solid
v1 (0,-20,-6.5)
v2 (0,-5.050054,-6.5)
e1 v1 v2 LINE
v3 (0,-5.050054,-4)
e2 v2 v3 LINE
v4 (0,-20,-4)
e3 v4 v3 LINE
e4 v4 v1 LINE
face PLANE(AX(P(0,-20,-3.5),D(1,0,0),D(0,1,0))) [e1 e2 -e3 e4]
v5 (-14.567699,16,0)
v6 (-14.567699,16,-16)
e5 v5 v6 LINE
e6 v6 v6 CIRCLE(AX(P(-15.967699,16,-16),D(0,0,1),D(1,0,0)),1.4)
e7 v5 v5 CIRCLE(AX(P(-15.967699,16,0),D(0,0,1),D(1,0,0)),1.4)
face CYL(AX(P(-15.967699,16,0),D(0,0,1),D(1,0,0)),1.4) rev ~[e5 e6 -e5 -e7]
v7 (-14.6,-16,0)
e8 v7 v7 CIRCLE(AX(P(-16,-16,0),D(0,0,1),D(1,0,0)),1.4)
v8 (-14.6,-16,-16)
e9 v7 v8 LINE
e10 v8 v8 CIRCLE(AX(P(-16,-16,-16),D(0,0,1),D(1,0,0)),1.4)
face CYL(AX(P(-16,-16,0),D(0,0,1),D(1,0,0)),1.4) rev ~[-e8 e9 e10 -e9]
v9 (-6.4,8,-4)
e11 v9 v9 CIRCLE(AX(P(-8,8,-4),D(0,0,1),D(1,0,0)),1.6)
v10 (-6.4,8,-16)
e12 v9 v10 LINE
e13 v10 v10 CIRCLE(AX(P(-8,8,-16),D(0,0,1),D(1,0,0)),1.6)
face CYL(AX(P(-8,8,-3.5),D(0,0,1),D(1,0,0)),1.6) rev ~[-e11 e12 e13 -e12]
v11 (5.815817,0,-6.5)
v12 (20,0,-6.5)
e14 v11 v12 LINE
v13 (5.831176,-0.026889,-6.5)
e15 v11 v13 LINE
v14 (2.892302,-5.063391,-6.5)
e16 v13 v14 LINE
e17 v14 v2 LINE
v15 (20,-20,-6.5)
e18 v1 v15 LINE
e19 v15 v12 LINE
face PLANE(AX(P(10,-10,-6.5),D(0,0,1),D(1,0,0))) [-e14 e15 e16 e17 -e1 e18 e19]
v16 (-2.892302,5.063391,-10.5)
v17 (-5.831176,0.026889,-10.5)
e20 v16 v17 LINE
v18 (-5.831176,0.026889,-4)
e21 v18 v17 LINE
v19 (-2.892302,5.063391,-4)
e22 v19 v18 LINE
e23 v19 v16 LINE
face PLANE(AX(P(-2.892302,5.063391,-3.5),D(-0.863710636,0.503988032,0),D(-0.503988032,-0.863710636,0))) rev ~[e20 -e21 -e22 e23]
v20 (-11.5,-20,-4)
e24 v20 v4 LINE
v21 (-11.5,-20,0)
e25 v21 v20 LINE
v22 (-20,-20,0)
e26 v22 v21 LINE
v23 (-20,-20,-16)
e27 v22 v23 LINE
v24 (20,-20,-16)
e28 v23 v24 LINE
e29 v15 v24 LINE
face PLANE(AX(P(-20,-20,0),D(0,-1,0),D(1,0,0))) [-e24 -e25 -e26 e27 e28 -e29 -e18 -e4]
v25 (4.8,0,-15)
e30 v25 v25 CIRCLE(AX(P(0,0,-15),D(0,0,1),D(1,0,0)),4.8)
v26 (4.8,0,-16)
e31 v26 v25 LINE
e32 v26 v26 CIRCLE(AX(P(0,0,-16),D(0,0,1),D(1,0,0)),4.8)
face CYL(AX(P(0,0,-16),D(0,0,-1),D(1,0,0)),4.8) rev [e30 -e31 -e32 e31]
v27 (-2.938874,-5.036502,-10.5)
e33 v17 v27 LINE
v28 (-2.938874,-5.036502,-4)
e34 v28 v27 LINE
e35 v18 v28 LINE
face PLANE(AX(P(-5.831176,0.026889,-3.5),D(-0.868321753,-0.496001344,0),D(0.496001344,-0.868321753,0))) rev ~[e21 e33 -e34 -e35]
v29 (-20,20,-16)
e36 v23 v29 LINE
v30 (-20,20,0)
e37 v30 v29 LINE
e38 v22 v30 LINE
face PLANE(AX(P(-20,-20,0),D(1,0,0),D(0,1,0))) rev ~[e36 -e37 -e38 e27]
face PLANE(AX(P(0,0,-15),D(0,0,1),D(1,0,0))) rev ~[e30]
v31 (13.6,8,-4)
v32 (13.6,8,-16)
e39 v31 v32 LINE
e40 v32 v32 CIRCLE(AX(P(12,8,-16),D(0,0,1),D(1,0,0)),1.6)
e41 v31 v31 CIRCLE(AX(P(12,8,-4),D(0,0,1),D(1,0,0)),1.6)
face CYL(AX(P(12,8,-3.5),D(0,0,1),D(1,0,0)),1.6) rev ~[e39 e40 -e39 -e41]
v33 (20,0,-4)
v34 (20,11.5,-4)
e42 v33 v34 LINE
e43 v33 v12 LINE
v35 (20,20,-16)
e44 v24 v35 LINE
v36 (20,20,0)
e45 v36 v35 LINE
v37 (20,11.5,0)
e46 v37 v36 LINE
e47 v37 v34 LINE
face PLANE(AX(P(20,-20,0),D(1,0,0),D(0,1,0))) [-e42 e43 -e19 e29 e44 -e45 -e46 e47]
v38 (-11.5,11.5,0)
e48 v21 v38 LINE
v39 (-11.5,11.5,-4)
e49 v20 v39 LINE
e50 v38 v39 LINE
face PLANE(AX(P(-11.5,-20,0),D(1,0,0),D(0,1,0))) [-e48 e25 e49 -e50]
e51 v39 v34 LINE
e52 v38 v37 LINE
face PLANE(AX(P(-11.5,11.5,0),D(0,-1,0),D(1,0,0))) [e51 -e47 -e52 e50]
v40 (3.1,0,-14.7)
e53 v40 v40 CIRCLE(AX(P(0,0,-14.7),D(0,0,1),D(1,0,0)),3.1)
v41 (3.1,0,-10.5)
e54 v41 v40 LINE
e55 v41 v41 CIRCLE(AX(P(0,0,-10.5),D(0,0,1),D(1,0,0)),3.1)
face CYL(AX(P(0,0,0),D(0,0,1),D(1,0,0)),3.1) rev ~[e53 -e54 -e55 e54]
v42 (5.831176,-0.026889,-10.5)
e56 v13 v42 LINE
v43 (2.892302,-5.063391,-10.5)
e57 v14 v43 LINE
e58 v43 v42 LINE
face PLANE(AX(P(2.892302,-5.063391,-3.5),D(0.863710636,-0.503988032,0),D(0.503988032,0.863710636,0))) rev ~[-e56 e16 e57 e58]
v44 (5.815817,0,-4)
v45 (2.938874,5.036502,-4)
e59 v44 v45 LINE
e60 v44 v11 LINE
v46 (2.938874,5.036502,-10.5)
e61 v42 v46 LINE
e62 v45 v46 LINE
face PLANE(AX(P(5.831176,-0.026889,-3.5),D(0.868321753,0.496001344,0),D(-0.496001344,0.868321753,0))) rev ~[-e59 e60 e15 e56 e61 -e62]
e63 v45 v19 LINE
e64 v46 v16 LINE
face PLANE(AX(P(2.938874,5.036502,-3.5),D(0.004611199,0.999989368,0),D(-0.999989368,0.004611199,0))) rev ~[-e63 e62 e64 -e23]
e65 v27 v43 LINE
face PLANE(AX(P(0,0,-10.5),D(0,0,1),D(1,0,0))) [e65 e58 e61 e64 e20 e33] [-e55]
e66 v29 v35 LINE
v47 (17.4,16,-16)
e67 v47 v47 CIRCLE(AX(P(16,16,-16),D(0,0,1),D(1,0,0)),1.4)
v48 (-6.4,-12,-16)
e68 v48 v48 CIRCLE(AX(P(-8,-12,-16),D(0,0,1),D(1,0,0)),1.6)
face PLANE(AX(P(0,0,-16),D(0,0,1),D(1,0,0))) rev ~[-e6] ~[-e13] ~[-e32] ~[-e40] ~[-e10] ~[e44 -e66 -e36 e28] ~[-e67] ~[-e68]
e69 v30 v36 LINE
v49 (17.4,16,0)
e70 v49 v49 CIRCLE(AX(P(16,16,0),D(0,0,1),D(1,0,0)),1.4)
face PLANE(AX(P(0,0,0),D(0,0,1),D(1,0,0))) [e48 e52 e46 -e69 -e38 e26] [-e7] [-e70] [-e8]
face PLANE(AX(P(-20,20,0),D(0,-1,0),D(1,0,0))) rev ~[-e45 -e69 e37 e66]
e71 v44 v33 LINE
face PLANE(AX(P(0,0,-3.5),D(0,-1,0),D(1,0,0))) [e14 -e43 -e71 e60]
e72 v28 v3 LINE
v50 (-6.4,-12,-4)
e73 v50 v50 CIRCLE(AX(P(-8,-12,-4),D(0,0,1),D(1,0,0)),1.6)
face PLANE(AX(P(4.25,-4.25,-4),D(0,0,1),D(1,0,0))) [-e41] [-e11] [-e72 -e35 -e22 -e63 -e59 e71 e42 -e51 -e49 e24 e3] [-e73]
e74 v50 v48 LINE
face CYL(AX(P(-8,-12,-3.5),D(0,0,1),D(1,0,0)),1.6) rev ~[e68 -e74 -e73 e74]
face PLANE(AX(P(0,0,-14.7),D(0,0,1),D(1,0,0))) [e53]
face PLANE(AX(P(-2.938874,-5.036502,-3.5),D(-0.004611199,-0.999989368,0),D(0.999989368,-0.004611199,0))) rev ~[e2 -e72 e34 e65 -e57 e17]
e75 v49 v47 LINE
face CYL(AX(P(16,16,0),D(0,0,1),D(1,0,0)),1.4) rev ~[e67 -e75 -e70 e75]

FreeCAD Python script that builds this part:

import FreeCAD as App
import Part
import Sketcher
from FreeCAD import Vector
Q = App.Units.Quantity

doc = App.newDocument("Part")
body = doc.addObject("PartDesign::Body", "Body")

# Sketch on XY plane
sketch1 = body.newObject("Sketcher::SketchObject", "Sketch")
sketch1.AttachmentSupport = (doc.getObject("XY_Plane"), [""])
sketch1.MapMode = "FlatFace"
sketch1.addGeometry(Part.LineSegment(Vector(-20, 20, 0), Vector(-20, -20, 0)), False)
sketch1.addGeometry(Part.LineSegment(Vector(-20, -20, 0), Vector(20, -20, 0)), False)
sketch1.addGeometry(Part.LineSegment(Vector(20, -20, 0), Vector(20, 20, 0)), False)
sketch1.addGeometry(Part.LineSegment(Vector(20, 20, 0), Vector(-20, 20, 0)), False)
sketch1.addConstraint(Sketcher.Constraint("Coincident", 0, 2, 1, 1))
sketch1.addConstraint(Sketcher.Constraint("Coincident", 1, 2, 2, 1))
sketch1.addConstraint(Sketcher.Constraint("Coincident", 2, 2, 3, 1))
sketch1.addConstraint(Sketcher.Constraint("Coincident", 3, 2, 0, 1))
sketch1.addConstraint(Sketcher.Constraint("Vertical", 0))
sketch1.addConstraint(Sketcher.Constraint("Horizontal", 1))
sketch1.addConstraint(Sketcher.Constraint("Vertical", 2))
sketch1.addConstraint(Sketcher.Constraint("Horizontal", 3))
sketch1.addConstraint(Sketcher.Constraint("Symmetric", 0, 2, 2, 2, -1, 1))
sketch1.addConstraint(Sketcher.Constraint("Equal", 3, 0))
sketch1.addConstraint(Sketcher.Constraint("DistanceX", 1, 1, 1, 2, Q("40 mm")))
pad1 = body.newObject("PartDesign::Pad", "Pad")
pad1.Profile = sketch1
pad1.Length = 16
pad1.Reversed = True

# Sketch on XY plane
sketch2 = body.newObject("Sketcher::SketchObject", "Sketch001")
sketch2.AttachmentSupport = (doc.getObject("XY_Plane"), [""])
sketch2.MapMode = "FlatFace"
sketch2.addGeometry(Part.Circle(Vector(0, 0, 0), Vector(0, 0, 1), 3.1), False)
sketch2.addConstraint(Sketcher.Constraint("Coincident", 0, 3, -1, 1))
sketch2.addConstraint(Sketcher.Constraint("Diameter", 0, Q("6.2 mm")))
pocket1 = body.newObject("PartDesign::Pocket", "Pocket")
pocket1.Profile = sketch2
pocket1.Length = 14.7

# Sketch on XY plane
sketch3 = body.newObject("Sketcher::SketchObject", "Sketch002")
sketch3.AttachmentSupport = (doc.getObject("XY_Plane"), [""])
sketch3.MapMode = "FlatFace"
sketch3.addGeometry(Part.LineSegment(Vector(-11.5, 11.5, 0), Vector(-11.5, -20, 0)), False)
sketch3.addGeometry(Part.LineSegment(Vector(-11.5, -20, 0), Vector(20, -20, 0)), False)
sketch3.addGeometry(Part.LineSegment(Vector(20, -20, 0), Vector(20, 11.5, 0)), False)
sketch3.addGeometry(Part.LineSegment(Vector(20, 11.5, 0), Vector(-11.5, 11.5, 0)), False)
sketch3.addConstraint(Sketcher.Constraint("Coincident", 0, 2, 1, 1))
sketch3.addConstraint(Sketcher.Constraint("Coincident", 1, 2, 2, 1))
sketch3.addConstraint(Sketcher.Constraint("Coincident", 2, 2, 3, 1))
sketch3.addConstraint(Sketcher.Constraint("Coincident", 3, 2, 0, 1))
sketch3.addConstraint(Sketcher.Constraint("Vertical", 0))
sketch3.addConstraint(Sketcher.Constraint("Horizontal", 1))
sketch3.addConstraint(Sketcher.Constraint("Vertical", 2))
sketch3.addConstraint(Sketcher.Constraint("Horizontal", 3))
sketch3.addConstraint(Sketcher.Constraint("Equal", 3, 0))
sketch3.addConstraint(Sketcher.Constraint("DistanceX", 1, 1, 1, 2, Q("31.5 mm")))
sketch3.addConstraint(Sketcher.Constraint("DistanceY", 0, 2, -1, 1, Q("20 mm")))
sketch3.addConstraint(Sketcher.Constraint("DistanceX", -1, 1, 1, 2, Q("20 mm")))
pocket2 = body.newObject("PartDesign::Pocket", "Pocket001")
pocket2.Profile = sketch3
pocket2.Length = 4

# Sketch on XY plane
sketch4 = body.newObject("Sketcher::SketchObject", "Sketch003")
sketch4.AttachmentSupport = (doc.getObject("XY_Plane"), [""])
sketch4.MapMode = "FlatFace"
sketch4.AttachmentOffset = App.Placement(Vector(0, 0, -3.5), App.Rotation())
sketch4.addGeometry(Part.LineSegment(Vector(5.831176, -0.026889, 0), Vector(2.938874, 5.036502, 0)), False)
sketch4.addGeometry(Part.LineSegment(Vector(2.938874, 5.036502, 0), Vector(-2.892302, 5.063391, 0)), False)
sketch4.addGeometry(Part.LineSegment(Vector(-2.892302, 5.063391, 0), Vector(-5.831176, 0.026889, 0)), False)
sketch4.addGeometry(Part.LineSegment(Vector(-5.831176, 0.026889, 0), Vector(-2.938874, -5.036502, 0)), False)
sketch4.addGeometry(Part.LineSegment(Vector(-2.938874, -5.036502, 0), Vector(2.892302, -5.063391, 0)), False)
sketch4.addGeometry(Part.LineSegment(Vector(2.892302, -5.063391, 0), Vector(5.831176, -0.026889, 0)), False)
sketch4.addConstraint(Sketcher.Constraint("Coincident", 0, 2, 1, 1))
sketch4.addConstraint(Sketcher.Constraint("Coincident", 1, 2, 2, 1))
sketch4.addConstraint(Sketcher.Constraint("Coincident", 2, 2, 3, 1))
sketch4.addConstraint(Sketcher.Constraint("Coincident", 3, 2, 4, 1))
sketch4.addConstraint(Sketcher.Constraint("Coincident", 4, 2, 5, 1))
sketch4.addConstraint(Sketcher.Constraint("Coincident", 5, 2, 0, 1))
sketch4.addConstraint(Sketcher.Constraint("Symmetric", 0, 2, 3, 2, -1, 1))
sketch4.addConstraint(Sketcher.Constraint("Symmetric", 1, 2, 4, 2, -1, 1))
sketch4.addConstraint(Sketcher.Constraint("Symmetric", 2, 2, 5, 2, -1, 1))
sketch4.addConstraint(Sketcher.Constraint("Equal", 0, 1))
sketch4.addConstraint(Sketcher.Constraint("Equal", 1, 2))
sketch4.addConstraint(Sketcher.Constraint("DistanceY", -1, 1, 0, 2, Q("5.036502 mm")))
sketch4.addConstraint(Sketcher.Constraint("DistanceX", 1, 2, -1, 1, Q("2.892302 mm")))
sketch4.addConstraint(Sketcher.Constraint("DistanceX", 2, 2, 3, 2, Q("2.892302 mm")))
sketch4.addConstraint(Sketcher.Constraint("Distance", 0, Q("5.831238 mm")))
pocket3 = body.newObject("PartDesign::Pocket", "Pocket002")
pocket3.Profile = sketch4
pocket3.Length = 7

# Sketch on XY plane
sketch5 = body.newObject("Sketcher::SketchObject", "Sketch004")
sketch5.AttachmentSupport = (doc.getObject("XY_Plane"), [""])
sketch5.MapMode = "FlatFace"
sketch5.AttachmentOffset = App.Placement(Vector(0, 0, -3.5), App.Rotation())
sketch5.addGeometry(Part.LineSegment(Vector(0, 0, 0), Vector(0, -20, 0)), False)
sketch5.addGeometry(Part.LineSegment(Vector(0, -20, 0), Vector(20, -20, 0)), False)
sketch5.addGeometry(Part.LineSegment(Vector(20, -20, 0), Vector(20, 0, 0)), False)
sketch5.addGeometry(Part.LineSegment(Vector(20, 0, 0), Vector(0, 0, 0)), False)
sketch5.addConstraint(Sketcher.Constraint("Coincident", 0, 2, 1, 1))
sketch5.addConstraint(Sketcher.Constraint("Coincident", 1, 2, 2, 1))
sketch5.addConstraint(Sketcher.Constraint("Coincident", 2, 2, 3, 1))
sketch5.addConstraint(Sketcher.Constraint("Coincident", 3, 2, 0, 1))
sketch5.addConstraint(Sketcher.Constraint("Vertical", 0))
sketch5.addConstraint(Sketcher.Constraint("Horizontal", 1))
sketch5.addConstraint(Sketcher.Constraint("Vertical", 2))
sketch5.addConstraint(Sketcher.Constraint("Horizontal", 3))
sketch5.addConstraint(Sketcher.Constraint("Coincident", 3, 2, -1, 1))
sketch5.addConstraint(Sketcher.Constraint("Equal", 3, 0))
sketch5.addConstraint(Sketcher.Constraint("DistanceX", 1, 1, 1, 2, Q("20 mm")))
pocket4 = body.newObject("PartDesign::Pocket", "Pocket003")
pocket4.Profile = sketch5
pocket4.Length = 3

# Sketch on XY plane
sketch6 = body.newObject("Sketcher::SketchObject", "Sketch005")
sketch6.AttachmentSupport = (doc.getObject("XY_Plane"), [""])
sketch6.MapMode = "FlatFace"
sketch6.AttachmentOffset = App.Placement(Vector(0, 0, -3.5), App.Rotation())
sketch6.addGeometry(Part.Circle(Vector(-8, 8, 0), Vector(0, 0, 1), 1.6), False)
sketch6.addGeometry(Part.Circle(Vector(12, 8, 0), Vector(0, 0, 1), 1.6), False)
sketch6.addGeometry(Part.Circle(Vector(-8, -12, 0), Vector(0, 0, 1), 1.6), False)
sketch6.addConstraint(Sketcher.Constraint("Equal", 0, 1))
sketch6.addConstraint(Sketcher.Constraint("Equal", 1, 2))
sketch6.addConstraint(Sketcher.Constraint("Horizontal", 0, 3, 1, 3))
sketch6.addConstraint(Sketcher.Constraint("Vertical", 0, 3, 2, 3))
sketch6.addConstraint(Sketcher.Constraint("Diameter", 0, Q("3.2 mm")))
sketch6.addConstraint(Sketcher.Constraint("DistanceX", 0, 3, -1, 1, Q("8 mm")))
sketch6.addConstraint(Sketcher.Constraint("DistanceY", -1, 1, 0, 3, Q("8 mm")))
sketch6.addConstraint(Sketcher.Constraint("DistanceX", -1, 1, 1, 3, Q("12 mm")))
sketch6.addConstraint(Sketcher.Constraint("DistanceY", 2, 3, -1, 1, Q("12 mm")))
pocket5 = body.newObject("PartDesign::Pocket", "Pocket004")
pocket5.Profile = sketch6
pocket5.Length = 25

# Sketch on XY plane
sketch7 = body.newObject("Sketcher::SketchObject", "Sketch006")
sketch7.AttachmentSupport = (doc.getObject("XY_Plane"), [""])
sketch7.MapMode = "FlatFace"
sketch7.AttachmentOffset = App.Placement(Vector(0, 0, -16), App.Rotation())
sketch7.addGeometry(Part.Circle(Vector(0, 0, 0), Vector(0, 0, 1), 4.8), False)
sketch7.addConstraint(Sketcher.Constraint("Coincident", 0, 3, -1, 1))
sketch7.addConstraint(Sketcher.Constraint("Diameter", 0, Q("9.6 mm")))
pocket6 = body.newObject("PartDesign::Pocket", "Pocket005")
pocket6.Profile = sketch7
pocket6.Length = 1
pocket6.Reversed = True

# Sketch on XY plane
sketch8 = body.newObject("Sketcher::SketchObject", "Sketch007")
sketch8.AttachmentSupport = (doc.getObject("XY_Plane"), [""])
sketch8.MapMode = "FlatFace"
sketch8.addGeometry(Part.Circle(Vector(-15.967699, 16, 0), Vector(0, 0, 1), 1.4), False)
sketch8.addGeometry(Part.Circle(Vector(16, 16, 0), Vector(0, 0, 1), 1.4), False)
sketch8.addGeometry(Part.Circle(Vector(-16, -16, 0), Vector(0, 0, 1), 1.4), False)
sketch8.addConstraint(Sketcher.Constraint("Equal", 0, 1))
sketch8.addConstraint(Sketcher.Constraint("Equal", 1, 2))
sketch8.addConstraint(Sketcher.Constraint("Symmetric", 1, 3, 2, 3, -1, 1))
sketch8.addConstraint(Sketcher.Constraint("Horizontal", 0, 3, 1, 3))
sketch8.addConstraint(Sketcher.Constraint("Diameter", 0, Q("2.8 mm")))
sketch8.addConstraint(Sketcher.Constraint("DistanceY", -1, 1, 0, 3, Q("16 mm")))
sketch8.addConstraint(Sketcher.Constraint("DistanceX", -1, 1, 1, 3, Q("16 mm")))
sketch8.addConstraint(Sketcher.Constraint("DistanceX", 0, 3, -1, 1, Q("15.967699 mm")))
pocket7 = body.newObject("PartDesign::Pocket", "Pocket006")
pocket7.Profile = sketch8
pocket7.Length = 25

doc.recompute()
